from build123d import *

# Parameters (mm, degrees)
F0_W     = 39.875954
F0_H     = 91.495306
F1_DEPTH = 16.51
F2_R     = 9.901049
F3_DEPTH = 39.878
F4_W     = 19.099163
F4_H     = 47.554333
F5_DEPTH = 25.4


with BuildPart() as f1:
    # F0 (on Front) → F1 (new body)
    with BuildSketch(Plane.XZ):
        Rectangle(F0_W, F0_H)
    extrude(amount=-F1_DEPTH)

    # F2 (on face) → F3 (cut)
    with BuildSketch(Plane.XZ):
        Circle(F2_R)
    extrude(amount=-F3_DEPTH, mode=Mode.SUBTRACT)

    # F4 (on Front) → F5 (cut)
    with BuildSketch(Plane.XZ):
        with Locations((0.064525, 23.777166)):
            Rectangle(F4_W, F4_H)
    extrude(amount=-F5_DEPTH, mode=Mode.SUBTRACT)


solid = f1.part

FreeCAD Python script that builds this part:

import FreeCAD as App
import Part
import Sketcher

V = App.Vector
Q = App.Units.Quantity

doc = App.newDocument("Part")
body = doc.addObject("PartDesign::Body", "Body")

# Sketch on XZ plane
sketch1 = body.newObject("Sketcher::SketchObject", "Sketch")
sketch1.AttachmentSupport = (doc.getObject("XZ_Plane"), [""])
sketch1.MapMode = "FlatFace"
sketch1.addGeometry([
    Part.LineSegment(V(-20, 46, 0), V(-20, -46, 0)),
    Part.LineSegment(V(-20, -46, 0), V(20, -46, 0)),
    Part.LineSegment(V(20, -46, 0), V(20, 46, 0)),
    Part.LineSegment(V(20, 46, 0), V(-20, 46, 0)),
], False)
sketch1.addConstraint([
    Sketcher.Constraint("Coincident", 0, 2, 1, 1),
    Sketcher.Constraint("Coincident", 1, 2, 2, 1),
    Sketcher.Constraint("Coincident", 2, 2, 3, 1),
    Sketcher.Constraint("Coincident", 3, 2, 0, 1),
    Sketcher.Constraint("Vertical", 0),
    Sketcher.Constraint("Horizontal", 1),
    Sketcher.Constraint("Vertical", 2),
    Sketcher.Constraint("Horizontal", 3),
    Sketcher.Constraint("Symmetric", 0, 2, 2, 2, -1, 1),
    Sketcher.Constraint("DistanceX", 1, 1, 1, 2, 39.875954),
    Sketcher.Constraint("DistanceY", 0, 2, 0, 1, 91.495306),
])
pad1 = body.newObject("PartDesign::Pad", "Pad")
pad1.Profile = sketch1
pad1.Length = Q("0.65 in")
pad1.Reversed = True

# Sketch on XZ plane
sketch2 = body.newObject("Sketcher::SketchObject", "Sketch001")
sketch2.AttachmentSupport = (doc.getObject("XZ_Plane"), [""])
sketch2.MapMode = "FlatFace"
sketch2.addGeometry(Part.Circle(V(0, 0, 0), V(0, 0, 1), 10), False)
sketch2.addConstraint([
    Sketcher.Constraint("Coincident", 0, 3, -1, 1),
    Sketcher.Constraint("Diameter", 0, 19.802098),
])
pocket1 = body.newObject("PartDesign::Pocket", "Pocket")
pocket1.Profile = sketch2
pocket1.Length = Q("1.57 in")

# Sketch on XZ plane
sketch3 = body.newObject("Sketcher::SketchObject", "Sketch002")
sketch3.AttachmentSupport = (doc.getObject("XZ_Plane"), [""])
sketch3.MapMode = "FlatFace"
sketch3.addGeometry([
    Part.LineSegment(V(-9, 48, 0), V(-9, 0, 0)),
    Part.LineSegment(V(-9, 0, 0), V(10, 0, 0)),
    Part.LineSegment(V(10, 0, 0), V(10, 48, 0)),
    Part.LineSegment(V(10, 48, 0), V(-9, 48, 0)),
], False)
sketch3.addConstraint([
    Sketcher.Constraint("Coincident", 0, 2, 1, 1),
    Sketcher.Constraint("Coincident", 1, 2, 2, 1),
    Sketcher.Constraint("Coincident", 2, 2, 3, 1),
    Sketcher.Constraint("Coincident", 3, 2, 0, 1),
    Sketcher.Constraint("Vertical", 0),
    Sketcher.Constraint("Horizontal", 1),
    Sketcher.Constraint("Vertical", 2),
    Sketcher.Constraint("Horizontal", 3),
    Sketcher.Constraint("PointOnObject", 0, 2, -1),
    Sketcher.Constraint("DistanceX", 1, 1, 1, 2, 19.099163),
    Sketcher.Constraint("DistanceY", 0, 2, 0, 1, 47.554333),
    Sketcher.Constraint("DistanceX", 0, 2, -1, 1, 9.485057),
])
pocket2 = body.newObject("PartDesign::Pocket", "Pocket001")
pocket2.Profile = sketch3
pocket2.Length = Q("1 in")

doc.recompute()
